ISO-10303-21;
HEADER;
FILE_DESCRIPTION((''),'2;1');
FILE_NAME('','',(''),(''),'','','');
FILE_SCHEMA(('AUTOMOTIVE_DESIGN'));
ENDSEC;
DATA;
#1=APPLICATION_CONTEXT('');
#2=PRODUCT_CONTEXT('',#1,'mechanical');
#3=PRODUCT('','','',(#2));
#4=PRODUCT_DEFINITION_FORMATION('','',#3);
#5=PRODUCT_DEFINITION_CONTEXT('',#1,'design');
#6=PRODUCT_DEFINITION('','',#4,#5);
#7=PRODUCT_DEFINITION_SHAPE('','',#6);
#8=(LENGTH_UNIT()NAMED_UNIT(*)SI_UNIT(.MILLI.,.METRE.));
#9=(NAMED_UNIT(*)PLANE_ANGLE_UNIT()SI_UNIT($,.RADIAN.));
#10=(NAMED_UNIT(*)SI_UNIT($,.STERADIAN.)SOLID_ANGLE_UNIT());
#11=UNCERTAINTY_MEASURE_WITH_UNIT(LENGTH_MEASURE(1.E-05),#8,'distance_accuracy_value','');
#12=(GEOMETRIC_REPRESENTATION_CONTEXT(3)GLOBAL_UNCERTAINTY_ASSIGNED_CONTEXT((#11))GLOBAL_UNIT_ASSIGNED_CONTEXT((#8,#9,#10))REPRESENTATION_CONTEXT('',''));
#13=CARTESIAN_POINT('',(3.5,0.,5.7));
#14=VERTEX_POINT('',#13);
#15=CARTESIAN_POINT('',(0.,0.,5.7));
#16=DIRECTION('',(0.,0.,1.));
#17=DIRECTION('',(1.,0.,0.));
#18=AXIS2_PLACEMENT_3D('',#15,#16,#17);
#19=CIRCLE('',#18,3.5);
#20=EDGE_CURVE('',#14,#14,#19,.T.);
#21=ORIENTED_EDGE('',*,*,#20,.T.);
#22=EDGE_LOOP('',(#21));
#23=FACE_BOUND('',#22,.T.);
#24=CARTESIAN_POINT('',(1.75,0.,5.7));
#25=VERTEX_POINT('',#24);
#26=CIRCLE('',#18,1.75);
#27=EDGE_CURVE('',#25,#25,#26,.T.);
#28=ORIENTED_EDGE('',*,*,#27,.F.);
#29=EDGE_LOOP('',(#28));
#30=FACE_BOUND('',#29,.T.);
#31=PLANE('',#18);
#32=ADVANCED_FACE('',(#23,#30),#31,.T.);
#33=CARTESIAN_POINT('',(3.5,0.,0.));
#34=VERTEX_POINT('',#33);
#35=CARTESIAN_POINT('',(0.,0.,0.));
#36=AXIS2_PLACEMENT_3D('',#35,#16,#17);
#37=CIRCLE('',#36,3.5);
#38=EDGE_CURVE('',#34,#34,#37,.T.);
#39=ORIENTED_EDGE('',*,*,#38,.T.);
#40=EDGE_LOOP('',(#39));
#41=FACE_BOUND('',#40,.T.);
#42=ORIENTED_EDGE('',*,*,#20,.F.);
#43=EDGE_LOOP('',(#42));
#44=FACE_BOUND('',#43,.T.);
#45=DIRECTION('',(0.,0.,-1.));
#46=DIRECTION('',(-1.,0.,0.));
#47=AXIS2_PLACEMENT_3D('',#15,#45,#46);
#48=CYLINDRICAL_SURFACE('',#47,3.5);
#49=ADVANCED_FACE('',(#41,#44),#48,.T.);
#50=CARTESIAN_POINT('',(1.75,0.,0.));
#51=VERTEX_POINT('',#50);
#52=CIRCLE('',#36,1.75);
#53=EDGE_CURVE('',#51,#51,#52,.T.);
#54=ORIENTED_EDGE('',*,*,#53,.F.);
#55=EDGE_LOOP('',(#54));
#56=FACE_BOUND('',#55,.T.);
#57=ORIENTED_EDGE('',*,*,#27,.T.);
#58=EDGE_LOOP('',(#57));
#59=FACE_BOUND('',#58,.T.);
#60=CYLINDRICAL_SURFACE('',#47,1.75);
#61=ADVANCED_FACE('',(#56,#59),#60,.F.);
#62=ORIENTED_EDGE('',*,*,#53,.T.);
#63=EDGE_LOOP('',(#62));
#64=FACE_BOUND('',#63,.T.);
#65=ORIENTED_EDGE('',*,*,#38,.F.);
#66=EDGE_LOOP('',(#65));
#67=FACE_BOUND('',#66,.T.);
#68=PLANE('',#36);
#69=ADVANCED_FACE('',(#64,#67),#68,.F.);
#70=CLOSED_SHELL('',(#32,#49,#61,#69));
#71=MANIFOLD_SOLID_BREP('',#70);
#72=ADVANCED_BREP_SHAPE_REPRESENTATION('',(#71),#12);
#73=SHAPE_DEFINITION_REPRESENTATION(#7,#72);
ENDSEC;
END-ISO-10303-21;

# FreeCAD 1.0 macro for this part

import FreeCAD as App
import Part
import Sketcher

doc = App.newDocument("Part")
body = doc.addObject("PartDesign::Body", "Body")

# Sketch on XY plane
sketch1 = body.newObject("Sketcher::SketchObject", "Sketch")
sketch1.AttachmentSupport = (doc.getObject("XY_Plane"), [""])
sketch1.MapMode = "FlatFace"
sketch1.addGeometry([
    Part.Circle(App.Vector(0, 0, 0), App.Vector(0, 0, 1), 3.5),
    Part.Circle(App.Vector(0, 0, 0), App.Vector(0, 0, 1), 1.8),
], False)
sketch1.addConstraint([
    Sketcher.Constraint("Coincident", 0, 3, -1, 1),
    Sketcher.Constraint("Coincident", 1, 3, -1, 1),
    Sketcher.Constraint("Diameter", 0, 7.0),
    Sketcher.Constraint("Diameter", 1, 3.5),
])
pad1 = body.newObject("PartDesign::Pad", "Pad")
pad1.Profile = sketch1
pad1.Length = 5.7

doc.recompute()
